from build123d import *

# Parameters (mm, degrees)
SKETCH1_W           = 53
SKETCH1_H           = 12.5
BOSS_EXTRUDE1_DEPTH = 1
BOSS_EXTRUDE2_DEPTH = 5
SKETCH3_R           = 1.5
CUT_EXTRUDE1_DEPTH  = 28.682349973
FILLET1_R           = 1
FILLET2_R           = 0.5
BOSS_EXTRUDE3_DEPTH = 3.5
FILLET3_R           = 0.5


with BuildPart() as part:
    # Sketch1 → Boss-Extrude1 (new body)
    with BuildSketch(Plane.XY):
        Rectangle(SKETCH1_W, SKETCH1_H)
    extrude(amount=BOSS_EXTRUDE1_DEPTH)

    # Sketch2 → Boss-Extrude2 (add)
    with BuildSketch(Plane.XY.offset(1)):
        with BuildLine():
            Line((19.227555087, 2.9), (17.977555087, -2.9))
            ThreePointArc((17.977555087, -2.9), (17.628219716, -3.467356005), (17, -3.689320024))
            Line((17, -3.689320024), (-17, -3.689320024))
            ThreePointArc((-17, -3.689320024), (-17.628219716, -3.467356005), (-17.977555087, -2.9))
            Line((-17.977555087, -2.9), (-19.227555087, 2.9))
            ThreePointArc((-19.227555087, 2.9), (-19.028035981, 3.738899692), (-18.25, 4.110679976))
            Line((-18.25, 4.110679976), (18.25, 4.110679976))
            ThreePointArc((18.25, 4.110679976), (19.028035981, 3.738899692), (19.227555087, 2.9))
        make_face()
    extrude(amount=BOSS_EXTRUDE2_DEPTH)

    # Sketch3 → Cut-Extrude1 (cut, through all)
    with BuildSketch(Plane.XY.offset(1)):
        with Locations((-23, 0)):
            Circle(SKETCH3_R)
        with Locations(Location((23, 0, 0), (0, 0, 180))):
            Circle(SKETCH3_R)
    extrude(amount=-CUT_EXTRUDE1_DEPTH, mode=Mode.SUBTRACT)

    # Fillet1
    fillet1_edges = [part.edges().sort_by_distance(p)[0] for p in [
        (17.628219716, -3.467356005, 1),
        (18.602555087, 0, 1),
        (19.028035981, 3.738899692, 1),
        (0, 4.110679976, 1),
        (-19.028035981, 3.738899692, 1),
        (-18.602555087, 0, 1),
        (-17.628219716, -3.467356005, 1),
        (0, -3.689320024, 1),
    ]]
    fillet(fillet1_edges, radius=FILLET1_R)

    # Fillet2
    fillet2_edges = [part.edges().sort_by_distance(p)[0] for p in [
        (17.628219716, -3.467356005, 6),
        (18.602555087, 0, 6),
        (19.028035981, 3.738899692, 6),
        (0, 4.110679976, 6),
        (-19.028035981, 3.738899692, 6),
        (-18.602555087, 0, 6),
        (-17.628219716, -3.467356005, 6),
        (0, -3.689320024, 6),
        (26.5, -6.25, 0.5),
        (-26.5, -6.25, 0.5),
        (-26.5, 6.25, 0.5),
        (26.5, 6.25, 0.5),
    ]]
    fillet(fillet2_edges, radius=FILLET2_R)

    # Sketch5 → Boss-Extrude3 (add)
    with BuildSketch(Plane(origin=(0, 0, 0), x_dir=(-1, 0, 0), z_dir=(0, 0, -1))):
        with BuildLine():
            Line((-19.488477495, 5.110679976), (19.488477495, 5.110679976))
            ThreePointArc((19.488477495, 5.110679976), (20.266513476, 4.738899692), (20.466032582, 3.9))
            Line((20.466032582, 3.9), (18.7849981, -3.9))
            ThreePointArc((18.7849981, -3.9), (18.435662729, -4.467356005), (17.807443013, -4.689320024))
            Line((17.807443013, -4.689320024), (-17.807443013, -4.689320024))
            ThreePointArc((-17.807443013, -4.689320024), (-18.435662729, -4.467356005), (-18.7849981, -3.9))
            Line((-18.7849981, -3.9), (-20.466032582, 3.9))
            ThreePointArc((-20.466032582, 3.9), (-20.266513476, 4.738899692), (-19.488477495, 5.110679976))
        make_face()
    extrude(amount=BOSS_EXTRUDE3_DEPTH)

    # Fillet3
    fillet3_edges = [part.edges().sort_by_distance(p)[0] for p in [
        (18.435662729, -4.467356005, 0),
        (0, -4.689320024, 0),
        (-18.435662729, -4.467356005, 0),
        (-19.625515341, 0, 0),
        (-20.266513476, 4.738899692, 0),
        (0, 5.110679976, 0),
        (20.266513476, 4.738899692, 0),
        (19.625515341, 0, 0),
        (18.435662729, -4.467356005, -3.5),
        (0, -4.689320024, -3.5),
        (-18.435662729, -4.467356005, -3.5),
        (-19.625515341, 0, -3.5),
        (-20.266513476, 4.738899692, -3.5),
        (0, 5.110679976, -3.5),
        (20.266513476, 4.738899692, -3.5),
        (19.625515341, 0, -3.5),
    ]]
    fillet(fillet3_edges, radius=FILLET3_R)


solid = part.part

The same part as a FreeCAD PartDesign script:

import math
import FreeCAD as App
import Part
import Sketcher


def edges_at(feature, points):
    """Names of the edges that pass closest to the given points."""
    edges = feature.Shape.Edges
    near = lambda p: min(range(len(edges)), key=lambda i: edges[i].distToShape(Part.Vertex(*p))[0])
    return sorted({f"Edge{near(p) + 1}" for p in points})


def add_polygon(sketch, points):
    """Adds a closed chain of lines whose ends are joined by coincident constraints."""
    first, n = sketch.GeometryCount, len(points)
    for a, b in zip(points, points[1:] + points[:1]):
        sketch.addGeometry(Part.LineSegment(App.Vector(*a, 0), App.Vector(*b, 0)), False)
    for i in range(n):
        sketch.addConstraint(Sketcher.Constraint("Coincident", first + i, 2, first + (i + 1) % n, 1))

doc = App.newDocument("Part")
body = doc.addObject("PartDesign::Body", "Body")

# Sketch on XY plane
sketch1 = doc.addObject("Sketcher::SketchObject", "Sketch")
body.addObject(sketch1)
sketch1.AttachmentSupport = (doc.XY_Plane, [""])
sketch1.MapMode = "FlatFace"
add_polygon(sketch1, [(-26, 6), (-26, -6), (26, -6), (26, 6)])  # lines 0-3
sketch1.addConstraint(Sketcher.Constraint("Vertical", 0))
sketch1.addConstraint(Sketcher.Constraint("Horizontal", 1))
sketch1.addConstraint(Sketcher.Constraint("Vertical", 2))
sketch1.addConstraint(Sketcher.Constraint("Horizontal", 3))
sketch1.addConstraint(Sketcher.Constraint("Symmetric", 0, 2, 2, 2, -1, 1))
sketch1.addConstraint(Sketcher.Constraint("DistanceX", 1, 1, 1, 2, 53.0))
sketch1.addConstraint(Sketcher.Constraint("DistanceY", 0, 2, 0, 1, 12.5))
pad1 = doc.addObject("PartDesign::Pad", "Pad")
body.addObject(pad1)
pad1.Profile = sketch1
pad1.Length = 1

# Sketch on XY plane
sketch2 = doc.addObject("Sketcher::SketchObject", "Sketch001")
body.addObject(sketch2)
sketch2.AttachmentSupport = (doc.XY_Plane, [""])
sketch2.MapMode = "FlatFace"
sketch2.AttachmentOffset = App.Placement(App.Vector(0, 0, 1), App.Rotation())
sketch2.addGeometry(Part.LineSegment(App.Vector(18, -2.9, 0), App.Vector(19.2, 2.9, 0)), False)
sketch2.addGeometry(Part.ArcOfCircle(Part.Circle(App.Vector(18.2, 3.1, 0), App.Vector(0, 0, 1), 1), math.radians(-12), math.radians(90)), False)
sketch2.addGeometry(Part.LineSegment(App.Vector(18.2, 4.1, 0), App.Vector(-18.2, 4.1, 0)), False)
sketch2.addGeometry(Part.ArcOfCircle(Part.Circle(App.Vector(-18.2, 3.1, 0), App.Vector(0, 0, 1), 1), math.radians(90), math.radians(192)), False)
sketch2.addGeometry(Part.LineSegment(App.Vector(-19.2, 2.9, 0), App.Vector(-18, -2.9, 0)), False)
sketch2.addGeometry(Part.ArcOfCircle(Part.Circle(App.Vector(-17, -2.7, 0), App.Vector(0, 0, 1), 1), math.radians(-168), math.radians(-90)), False)
sketch2.addGeometry(Part.LineSegment(App.Vector(-17, -3.7, 0), App.Vector(17, -3.7, 0)), False)
sketch2.addGeometry(Part.ArcOfCircle(Part.Circle(App.Vector(17, -2.7, 0), App.Vector(0, 0, 1), 1), math.radians(-90), math.radians(-12)), False)
sketch2.addConstraint(Sketcher.Constraint("Tangent", 0, 2, 1, 1))
sketch2.addConstraint(Sketcher.Constraint("Tangent", 1, 2, 2, 1))
sketch2.addConstraint(Sketcher.Constraint("Tangent", 2, 2, 3, 1))
sketch2.addConstraint(Sketcher.Constraint("Tangent", 3, 2, 4, 1))
sketch2.addConstraint(Sketcher.Constraint("Tangent", 4, 2, 5, 1))
sketch2.addConstraint(Sketcher.Constraint("Tangent", 5, 2, 6, 1))
sketch2.addConstraint(Sketcher.Constraint("Tangent", 6, 2, 7, 1))
sketch2.addConstraint(Sketcher.Constraint("Tangent", 7, 2, 0, 1))
sketch2.addConstraint(Sketcher.Constraint("Horizontal", 2))
sketch2.addConstraint(Sketcher.Constraint("Horizontal", 6))
sketch2.addConstraint(Sketcher.Constraint("Equal", 1, 3))
sketch2.addConstraint(Sketcher.Constraint("Equal", 3, 5))
sketch2.addConstraint(Sketcher.Constraint("Equal", 5, 7))
sketch2.addConstraint(Sketcher.Constraint("Symmetric", 0, 2, 3, 2, -2))
sketch2.addConstraint(Sketcher.Constraint("Radius", 1, 1.0))
sketch2.addConstraint(Sketcher.Constraint("DistanceX", 6, 1, 6, 2, 34.0))
sketch2.addConstraint(Sketcher.Constraint("DistanceX", 2, 2, 2, 1, 36.5))
sketch2.addConstraint(Sketcher.Constraint("DistanceY", -1, 1, 0, 2, 2.9))
sketch2.addConstraint(Sketcher.Constraint("DistanceY", 4, 2, -1, 1, 2.9))
pad2 = doc.addObject("PartDesign::Pad", "Pad001")
body.addObject(pad2)
pad2.Profile = sketch2
pad2.Length = 5

# Sketch on XY plane
sketch3 = doc.addObject("Sketcher::SketchObject", "Sketch002")
body.addObject(sketch3)
sketch3.AttachmentSupport = (doc.XY_Plane, [""])
sketch3.MapMode = "FlatFace"
sketch3.AttachmentOffset = App.Placement(App.Vector(0, 0, 1), App.Rotation())
sketch3.addGeometry(Part.Circle(App.Vector(-23, 0, 0), App.Vector(0, 0, 1), 1.5), False)
sketch3.addGeometry(Part.Circle(App.Vector(23, 0, 0), App.Vector(0, 0, 1), 1.5), False)
sketch3.addConstraint(Sketcher.Constraint("Equal", 0, 1))
sketch3.addConstraint(Sketcher.Constraint("Symmetric", 0, 3, 1, 3, -1, 1))
sketch3.addConstraint(Sketcher.Constraint("PointOnObject", 0, 3, -1))
sketch3.addConstraint(Sketcher.Constraint("Diameter", 0, 3.0))
sketch3.addConstraint(Sketcher.Constraint("DistanceX", 0, 3, -1, 1, 23.0))
pocket1 = doc.addObject("PartDesign::Pocket", "Pocket")
body.addObject(pocket1)
pocket1.Profile = sketch3
pocket1.Type = "ThroughAll"
doc.recompute()

fillet = doc.addObject("PartDesign::Fillet", "Fillet")
body.addObject(fillet)
fillet.Base = (pocket1, edges_at(pocket1, [
    (17.628, -3.467, 1),
    (18.603, 0, 1),
    (19.028, 3.739, 1),
    (0, 4.111, 1),
    (-19.028, 3.739, 1),
    (-18.603, 0, 1),
    (-17.628, -3.467, 1),
    (0, -3.689, 1),
]))
fillet.Radius = 1
doc.recompute()

fillet2 = doc.addObject("PartDesign::Fillet", "Fillet001")
body.addObject(fillet2)
fillet2.Base = (fillet, edges_at(fillet, [
    (17.628, -3.467, 6),
    (18.603, 0, 6),
    (19.028, 3.739, 6),
    (0, 4.111, 6),
    (-19.028, 3.739, 6),
    (-18.603, 0, 6),
    (-17.628, -3.467, 6),
    (0, -3.689, 6),
    (26.5, -6.25, 0.5),
    (-26.5, -6.25, 0.5),
    (-26.5, 6.25, 0.5),
    (26.5, 6.25, 0.5),
]))
fillet2.Radius = 0.5

# Sketch on XY plane
sketch4 = doc.addObject("Sketcher::SketchObject", "Sketch003")
body.addObject(sketch4)
sketch4.AttachmentSupport = (doc.XY_Plane, [""])
sketch4.MapMode = "FlatFace"
sketch4.addGeometry(Part.LineSegment(App.Vector(-19.5, 5.1, 0), App.Vector(19.5, 5.1, 0)), False)
sketch4.addGeometry(Part.ArcOfCircle(Part.Circle(App.Vector(19.5, 4.1, 0), App.Vector(0, 0, 1), 1), math.radians(-12), math.radians(90)), False)
sketch4.addGeometry(Part.LineSegment(App.Vector(20.5, 3.9, 0), App.Vector(18.8, -3.9, 0)), False)
sketch4.addGeometry(Part.ArcOfCircle(Part.Circle(App.Vector(17.8, -3.7, 0), App.Vector(0, 0, 1), 1), math.radians(-90), math.radians(-12)), False)
sketch4.addGeometry(Part.LineSegment(App.Vector(17.8, -4.7, 0), App.Vector(-17.8, -4.7, 0)), False)
sketch4.addGeometry(Part.ArcOfCircle(Part.Circle(App.Vector(-17.8, -3.7, 0), App.Vector(0, 0, 1), 1), math.radians(-168), math.radians(-90)), False)
sketch4.addGeometry(Part.LineSegment(App.Vector(-18.8, -3.9, 0), App.Vector(-20.5, 3.9, 0)), False)
sketch4.addGeometry(Part.ArcOfCircle(Part.Circle(App.Vector(-19.5, 4.1, 0), App.Vector(0, 0, 1), 1), math.radians(90), math.radians(192)), False)
sketch4.addConstraint(Sketcher.Constraint("Tangent", 0, 2, 1, 2))
sketch4.addConstraint(Sketcher.Constraint("Tangent", 1, 1, 2, 1))
sketch4.addConstraint(Sketcher.Constraint("Tangent", 2, 2, 3, 2))
sketch4.addConstraint(Sketcher.Constraint("Tangent", 3, 1, 4, 1))
sketch4.addConstraint(Sketcher.Constraint("Tangent", 4, 2, 5, 2))
sketch4.addConstraint(Sketcher.Constraint("Tangent", 5, 1, 6, 1))
sketch4.addConstraint(Sketcher.Constraint("Tangent", 6, 2, 7, 2))
sketch4.addConstraint(Sketcher.Constraint("Tangent", 7, 1, 0, 1))
sketch4.addConstraint(Sketcher.Constraint("Horizontal", 0))
sketch4.addConstraint(Sketcher.Constraint("Horizontal", 4))
sketch4.addConstraint(Sketcher.Constraint("Equal", 1, 3))
sketch4.addConstraint(Sketcher.Constraint("Equal", 3, 5))
sketch4.addConstraint(Sketcher.Constraint("Equal", 5, 7))
sketch4.addConstraint(Sketcher.Constraint("Symmetric", 2, 2, 5, 1, -2))
sketch4.addConstraint(Sketcher.Constraint("Radius", 1, 1.0))
sketch4.addConstraint(Sketcher.Constraint("DistanceY", -1, 1, 1, 1, 3.9))
sketch4.addConstraint(Sketcher.Constraint("DistanceY", 2, 2, -1, 1, 3.9))
sketch4.addConstraint(Sketcher.Constraint("DistanceX", -1, 1, 2, 2, 18.784998))
sketch4.addConstraint(Sketcher.Constraint("Distance", 2, 7.97909))
pad3 = doc.addObject("PartDesign::Pad", "Pad002")
body.addObject(pad3)
pad3.Profile = sketch4
pad3.Length = 3.5
pad3.Reversed = True
doc.recompute()

fillet3 = doc.addObject("PartDesign::Fillet", "Fillet002")
body.addObject(fillet3)
fillet3.Base = (pad3, edges_at(pad3, [
    (18.436, -4.467, 0),
    (0, -4.689, 0),
    (-18.436, -4.467, 0),
    (-19.626, 0, 0),
    (-20.267, 4.739, 0),
    (0, 5.111, 0),
    (20.267, 4.739, 0),
    (19.626, 0, 0),
    (18.436, -4.467, -3.5),
    (0, -4.689, -3.5),
    (-18.436, -4.467, -3.5),
    (-19.626, 0, -3.5),
    (-20.267, 4.739, -3.5),
    (0, 5.111, -3.5),
    (20.267, 4.739, -3.5),
    (19.626, 0, -3.5),
]))
fillet3.Radius = 0.5

doc.recompute()
